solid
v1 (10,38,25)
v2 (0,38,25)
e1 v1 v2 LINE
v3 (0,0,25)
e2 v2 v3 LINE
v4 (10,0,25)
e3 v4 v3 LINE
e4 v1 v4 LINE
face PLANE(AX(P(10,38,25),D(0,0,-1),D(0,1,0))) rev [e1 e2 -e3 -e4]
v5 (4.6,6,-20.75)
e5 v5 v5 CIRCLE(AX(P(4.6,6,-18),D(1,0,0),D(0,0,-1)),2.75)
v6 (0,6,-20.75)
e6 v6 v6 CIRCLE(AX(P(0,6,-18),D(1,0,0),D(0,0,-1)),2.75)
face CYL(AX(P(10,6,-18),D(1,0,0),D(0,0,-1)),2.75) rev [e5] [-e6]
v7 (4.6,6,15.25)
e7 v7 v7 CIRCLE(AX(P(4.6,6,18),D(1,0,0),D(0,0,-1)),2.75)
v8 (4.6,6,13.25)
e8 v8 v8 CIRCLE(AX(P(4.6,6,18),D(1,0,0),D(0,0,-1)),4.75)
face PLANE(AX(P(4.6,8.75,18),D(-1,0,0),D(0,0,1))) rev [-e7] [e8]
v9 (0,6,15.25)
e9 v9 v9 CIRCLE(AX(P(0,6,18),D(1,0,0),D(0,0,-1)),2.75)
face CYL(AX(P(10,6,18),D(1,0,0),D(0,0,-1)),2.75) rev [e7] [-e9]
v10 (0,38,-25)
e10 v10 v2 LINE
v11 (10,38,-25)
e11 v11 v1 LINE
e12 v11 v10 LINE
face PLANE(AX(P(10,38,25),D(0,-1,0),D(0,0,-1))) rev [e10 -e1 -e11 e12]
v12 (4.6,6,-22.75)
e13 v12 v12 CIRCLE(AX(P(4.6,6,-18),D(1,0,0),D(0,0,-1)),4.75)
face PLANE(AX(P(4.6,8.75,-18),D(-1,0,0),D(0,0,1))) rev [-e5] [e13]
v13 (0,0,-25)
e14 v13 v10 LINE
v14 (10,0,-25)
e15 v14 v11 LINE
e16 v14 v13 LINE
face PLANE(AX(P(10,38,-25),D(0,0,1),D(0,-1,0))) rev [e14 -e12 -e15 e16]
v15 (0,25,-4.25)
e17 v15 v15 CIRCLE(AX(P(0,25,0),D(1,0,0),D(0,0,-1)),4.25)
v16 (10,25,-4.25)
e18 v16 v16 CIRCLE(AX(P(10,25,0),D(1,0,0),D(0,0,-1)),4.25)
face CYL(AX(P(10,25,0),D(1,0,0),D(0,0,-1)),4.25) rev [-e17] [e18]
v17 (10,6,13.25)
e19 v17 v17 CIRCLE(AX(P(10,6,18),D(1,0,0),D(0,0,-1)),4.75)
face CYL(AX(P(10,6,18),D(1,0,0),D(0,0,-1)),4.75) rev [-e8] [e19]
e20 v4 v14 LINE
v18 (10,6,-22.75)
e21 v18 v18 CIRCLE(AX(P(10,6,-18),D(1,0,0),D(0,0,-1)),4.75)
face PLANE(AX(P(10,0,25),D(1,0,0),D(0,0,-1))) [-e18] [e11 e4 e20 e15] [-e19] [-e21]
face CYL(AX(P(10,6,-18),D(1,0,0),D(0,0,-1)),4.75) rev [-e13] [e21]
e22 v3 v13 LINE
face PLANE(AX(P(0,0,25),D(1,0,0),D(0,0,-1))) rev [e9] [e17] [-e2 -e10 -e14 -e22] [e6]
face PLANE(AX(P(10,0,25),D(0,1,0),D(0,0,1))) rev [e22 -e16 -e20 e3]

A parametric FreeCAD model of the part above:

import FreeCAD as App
import Part
import Sketcher

V = App.Vector
Q = App.Units.Quantity

doc = App.newDocument("Part")
body = doc.addObject("PartDesign::Body", "Body")

# Sketch on YZ plane
sketch1 = doc.addObject("Sketcher::SketchObject", "Sketch")
body.addObject(sketch1)
sketch1.AttachmentSupport = (doc.YZ_Plane, [""])
sketch1.MapMode = "FlatFace"
sketch1.addGeometry(Part.LineSegment(V(38, 25, 0), V(0, 25, 0)), False)
sketch1.addGeometry(Part.LineSegment(V(0, 25, 0), V(0, -25, 0)), False)
sketch1.addGeometry(Part.LineSegment(V(0, -25, 0), V(38, -25, 0)), False)
sketch1.addGeometry(Part.LineSegment(V(38, -25, 0), V(38, 25, 0)), False)
sketch1.addConstraint(Sketcher.Constraint("Coincident", 0, 2, 1, 1))
sketch1.addConstraint(Sketcher.Constraint("Coincident", 1, 2, 2, 1))
sketch1.addConstraint(Sketcher.Constraint("Coincident", 2, 2, 3, 1))
sketch1.addConstraint(Sketcher.Constraint("Coincident", 3, 2, 0, 1))
sketch1.addConstraint(Sketcher.Constraint("Horizontal", 0))
sketch1.addConstraint(Sketcher.Constraint("Vertical", 1))
sketch1.addConstraint(Sketcher.Constraint("Horizontal", 2))
sketch1.addConstraint(Sketcher.Constraint("Vertical", 3))
sketch1.addConstraint(Sketcher.Constraint("Symmetric", 0, 2, 1, 2, -1, 1))
sketch1.addConstraint(Sketcher.Constraint("DistanceX", 0, 2, 0, 1, Q("38 mm")))
sketch1.addConstraint(Sketcher.Constraint("DistanceY", 1, 2, 1, 1, Q("50 mm")))
pad1 = doc.addObject("PartDesign::Pad", "Pad")
body.addObject(pad1)
pad1.Profile = sketch1
pad1.Length = 10

# Sketch on YZ plane
sketch2 = doc.addObject("Sketcher::SketchObject", "Sketch001")
body.addObject(sketch2)
sketch2.AttachmentSupport = (doc.YZ_Plane, [""])
sketch2.MapMode = "FlatFace"
sketch2.AttachmentOffset = App.Placement(V(0, 0, 10), App.Rotation())
sketch2.addGeometry(Part.Circle(V(25, 0, 0), V(0, 0, 1), 4.25), False)
sketch2.addConstraint(Sketcher.Constraint("PointOnObject", 0, 3, -1))
sketch2.addConstraint(Sketcher.Constraint("Diameter", 0, Q("8.5 mm")))
sketch2.addConstraint(Sketcher.Constraint("DistanceX", -1, 1, 0, 3, Q("25 mm")))
doc.recompute()
hole = doc.addObject("PartDesign::Hole", "Hole")
body.addObject(hole)
hole.Profile = sketch2
hole.ThreadType = "None"
hole.Diameter = 8.5
hole.DepthType = "ThroughAll"

# Sketch on YZ plane
sketch3 = doc.addObject("Sketcher::SketchObject", "Sketch002")
body.addObject(sketch3)
sketch3.AttachmentSupport = (doc.YZ_Plane, [""])
sketch3.MapMode = "FlatFace"
sketch3.AttachmentOffset = App.Placement(V(0, 0, 10), App.Rotation())
sketch3.addGeometry(Part.Circle(V(6, -18, 0), V(0, 0, 1), 2.75), False)
sketch3.addGeometry(Part.Circle(V(6, 18, 0), V(0, 0, 1), 2.75), False)
sketch3.addConstraint(Sketcher.Constraint("Equal", 0, 1))
sketch3.addConstraint(Sketcher.Constraint("Symmetric", 0, 3, 1, 3, -1))
sketch3.addConstraint(Sketcher.Constraint("Diameter", 0, Q("5.5 mm")))
sketch3.addConstraint(Sketcher.Constraint("DistanceX", -1, 1, 0, 3, Q("6 mm")))
sketch3.addConstraint(Sketcher.Constraint("DistanceY", 0, 3, -1, 1, Q("18 mm")))
doc.recompute()
hole2 = doc.addObject("PartDesign::Hole", "Hole001")
body.addObject(hole2)
hole2.Profile = sketch3
hole2.ThreadType = "None"
hole2.Diameter = 5.5
hole2.DepthType = "ThroughAll"
hole2.HoleCutType = "Counterbore"
hole2.HoleCutDiameter = 9.5
hole2.HoleCutDepth = 5.4

doc.recompute()
